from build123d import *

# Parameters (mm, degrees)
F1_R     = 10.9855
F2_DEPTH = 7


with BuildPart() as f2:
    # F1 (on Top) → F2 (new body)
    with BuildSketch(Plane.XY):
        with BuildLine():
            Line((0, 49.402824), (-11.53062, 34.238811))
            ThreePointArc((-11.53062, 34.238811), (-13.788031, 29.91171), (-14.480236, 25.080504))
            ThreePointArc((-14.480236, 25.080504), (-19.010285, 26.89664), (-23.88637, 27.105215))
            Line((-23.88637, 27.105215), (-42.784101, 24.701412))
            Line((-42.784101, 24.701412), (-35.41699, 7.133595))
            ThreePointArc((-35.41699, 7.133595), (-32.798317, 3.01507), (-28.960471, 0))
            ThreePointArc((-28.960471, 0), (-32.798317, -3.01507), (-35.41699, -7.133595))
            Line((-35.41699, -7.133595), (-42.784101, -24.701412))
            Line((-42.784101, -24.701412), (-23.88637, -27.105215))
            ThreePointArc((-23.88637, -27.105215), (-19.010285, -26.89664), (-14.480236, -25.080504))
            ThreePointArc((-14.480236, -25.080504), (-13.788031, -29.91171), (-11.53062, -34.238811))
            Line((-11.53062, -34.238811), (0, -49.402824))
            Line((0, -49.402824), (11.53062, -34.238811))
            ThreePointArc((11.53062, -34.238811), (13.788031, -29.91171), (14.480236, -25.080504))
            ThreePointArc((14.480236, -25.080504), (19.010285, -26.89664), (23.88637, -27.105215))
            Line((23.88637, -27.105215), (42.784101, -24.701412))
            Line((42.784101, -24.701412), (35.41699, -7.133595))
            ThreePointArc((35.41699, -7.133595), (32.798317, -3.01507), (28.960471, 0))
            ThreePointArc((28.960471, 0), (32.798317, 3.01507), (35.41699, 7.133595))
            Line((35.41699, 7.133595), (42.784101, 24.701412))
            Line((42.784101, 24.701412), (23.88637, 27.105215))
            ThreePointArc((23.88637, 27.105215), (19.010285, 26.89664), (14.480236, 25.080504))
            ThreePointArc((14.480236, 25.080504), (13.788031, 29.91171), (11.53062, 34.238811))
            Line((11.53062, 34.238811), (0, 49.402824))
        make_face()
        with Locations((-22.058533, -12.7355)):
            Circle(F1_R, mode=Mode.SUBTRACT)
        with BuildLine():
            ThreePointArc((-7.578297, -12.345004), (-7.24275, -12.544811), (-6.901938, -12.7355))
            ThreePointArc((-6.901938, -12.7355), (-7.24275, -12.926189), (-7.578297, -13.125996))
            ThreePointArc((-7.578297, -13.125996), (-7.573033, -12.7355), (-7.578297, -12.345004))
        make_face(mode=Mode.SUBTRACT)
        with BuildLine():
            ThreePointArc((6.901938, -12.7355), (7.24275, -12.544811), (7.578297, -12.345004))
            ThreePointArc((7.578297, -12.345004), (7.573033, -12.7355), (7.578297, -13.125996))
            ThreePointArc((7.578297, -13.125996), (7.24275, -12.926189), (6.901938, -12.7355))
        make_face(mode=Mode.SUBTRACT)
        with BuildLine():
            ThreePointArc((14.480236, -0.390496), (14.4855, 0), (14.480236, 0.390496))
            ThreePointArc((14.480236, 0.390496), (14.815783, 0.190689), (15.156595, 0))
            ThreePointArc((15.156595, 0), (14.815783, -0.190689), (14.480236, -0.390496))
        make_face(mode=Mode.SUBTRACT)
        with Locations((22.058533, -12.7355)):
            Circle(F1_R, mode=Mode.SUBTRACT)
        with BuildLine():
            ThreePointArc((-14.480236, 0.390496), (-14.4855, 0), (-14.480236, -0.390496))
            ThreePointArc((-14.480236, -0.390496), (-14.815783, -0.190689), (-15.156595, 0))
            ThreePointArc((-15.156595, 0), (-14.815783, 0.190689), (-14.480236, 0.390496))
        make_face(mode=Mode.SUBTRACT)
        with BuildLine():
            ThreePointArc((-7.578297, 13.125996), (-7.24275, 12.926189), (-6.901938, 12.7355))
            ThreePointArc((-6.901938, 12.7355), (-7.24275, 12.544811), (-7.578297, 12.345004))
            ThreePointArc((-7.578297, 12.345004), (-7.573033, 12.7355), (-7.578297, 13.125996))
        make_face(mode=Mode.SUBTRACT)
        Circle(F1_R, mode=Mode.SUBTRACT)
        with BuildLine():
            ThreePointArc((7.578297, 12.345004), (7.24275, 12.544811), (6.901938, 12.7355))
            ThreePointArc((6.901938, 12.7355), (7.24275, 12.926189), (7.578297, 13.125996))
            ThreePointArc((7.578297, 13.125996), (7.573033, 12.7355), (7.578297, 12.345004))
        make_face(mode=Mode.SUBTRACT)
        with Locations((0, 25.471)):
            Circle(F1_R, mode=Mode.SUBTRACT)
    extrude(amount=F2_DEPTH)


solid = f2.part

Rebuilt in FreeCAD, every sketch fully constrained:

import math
import FreeCAD as App
import Part
import Sketcher
from FreeCAD import Vector
Q = App.Units.Quantity

doc = App.newDocument("Part")
body = doc.addObject("PartDesign::Body", "Body")

# Sketch on XY plane
sketch1 = body.newObject("Sketcher::SketchObject", "Sketch")
sketch1.AttachmentSupport = (doc.getObject("XY_Plane"), [""])
sketch1.MapMode = "FlatFace"
sketch1.addGeometry(Part.LineSegment(Vector(0, 49.402824, 0), Vector(-11.53062, 34.238811, 0)), False)
sketch1.addGeometry(Part.ArcOfCircle(Part.Circle(Vector(0.000006, 25.470997, 0), Vector(0, 0, 1), 14.485506), math.radians(142.750875), math.radians(181.544739)), False)
sketch1.addGeometry(Part.ArcOfCircle(Part.Circle(Vector(-22.058533, 12.735499, 0), Vector(0, 0, 1), 14.4855), math.radians(58.455254), math.radians(97.249132)), False)
sketch1.addGeometry(Part.LineSegment(Vector(-23.88637, 27.105215, 0), Vector(-42.784101, 24.701412, 0)), False)
sketch1.addGeometry(Part.LineSegment(Vector(-42.784101, 24.701412, 0), Vector(-35.41699, 7.133595, 0)), False)
sketch1.addGeometry(Part.ArcOfCircle(Part.Circle(Vector(-22.058537, 12.735496, 0), Vector(0, 0, 1), 14.485495), math.radians(-157.249134), math.radians(-118.45524)), False)
sketch1.addGeometry(Part.ArcOfCircle(Part.Circle(Vector(-22.058537, -12.735496, 0), Vector(0, 0, 1), 14.485495), math.radians(118.45524), math.radians(157.249134)), False)
sketch1.addGeometry(Part.LineSegment(Vector(-35.41699, -7.133595, 0), Vector(-42.784101, -24.701412, 0)), False)
sketch1.addGeometry(Part.LineSegment(Vector(-42.784101, -24.701412, 0), Vector(-23.88637, -27.105215, 0)), False)
sketch1.addGeometry(Part.ArcOfCircle(Part.Circle(Vector(-22.058533, -12.735499, 0), Vector(0, 0, 1), 14.4855), math.radians(-97.249132), math.radians(-58.455254)), False)
sketch1.addGeometry(Part.ArcOfCircle(Part.Circle(Vector(0.000006, -25.470997, 0), Vector(0, 0, 1), 14.485506), math.radians(178.455261), math.radians(217.249125)), False)
sketch1.addGeometry(Part.LineSegment(Vector(-11.53062, -34.238811, 0), Vector(0, -49.402824, 0)), False)
sketch1.addGeometry(Part.LineSegment(Vector(0, -49.402824, 0), Vector(11.53062, -34.238811, 0)), False)
sketch1.addGeometry(Part.ArcOfCircle(Part.Circle(Vector(-0.000006, -25.470997, 0), Vector(0, 0, 1), 14.485506), math.radians(-37.249125), math.radians(1.544739)), False)
sketch1.addGeometry(Part.ArcOfCircle(Part.Circle(Vector(22.058533, -12.735499, 0), Vector(0, 0, 1), 14.4855), math.radians(-121.544746), math.radians(-82.750868)), False)
sketch1.addGeometry(Part.LineSegment(Vector(23.88637, -27.105215, 0), Vector(42.784101, -24.701412, 0)), False)
sketch1.addGeometry(Part.LineSegment(Vector(42.784101, -24.701412, 0), Vector(35.41699, -7.133595, 0)), False)
sketch1.addGeometry(Part.ArcOfCircle(Part.Circle(Vector(22.058537, -12.735496, 0), Vector(0, 0, 1), 14.485495), math.radians(22.750866), math.radians(61.54476)), False)
sketch1.addGeometry(Part.ArcOfCircle(Part.Circle(Vector(22.058537, 12.735496, 0), Vector(0, 0, 1), 14.485495), math.radians(-61.54476), math.radians(-22.750866)), False)
sketch1.addGeometry(Part.LineSegment(Vector(35.41699, 7.133595, 0), Vector(42.784101, 24.701412, 0)), False)
sketch1.addGeometry(Part.LineSegment(Vector(42.784101, 24.701412, 0), Vector(23.88637, 27.105215, 0)), False)
sketch1.addGeometry(Part.ArcOfCircle(Part.Circle(Vector(22.058533, 12.735499, 0), Vector(0, 0, 1), 14.4855), math.radians(82.750868), math.radians(121.544746)), False)
sketch1.addGeometry(Part.ArcOfCircle(Part.Circle(Vector(-0.000006, 25.470997, 0), Vector(0, 0, 1), 14.485506), math.radians(-1.544739), math.radians(37.249125)), False)
sketch1.addGeometry(Part.LineSegment(Vector(11.53062, 34.238811, 0), Vector(0, 49.402824, 0)), False)
sketch1.addGeometry(Part.Circle(Vector(-22.058533, -12.7355, 0), Vector(0, 0, 1), 10.9855), False)
sketch1.addGeometry(Part.ArcOfCircle(Part.Circle(Vector(-22.059625, -12.7355, 0), Vector(0, 0, 1), 14.486592), math.radians(-1.544634), math.radians(1.544634)), False)
sketch1.addGeometry(Part.ArcOfCircle(Part.Circle(Vector(-0.000086, -0.000147, 0), Vector(0, 0, 1), 14.48533), math.radians(-121.544766), math.radians(-118.455228)), False)
sketch1.addGeometry(Part.ArcOfCircle(Part.Circle(Vector(-0.000086, -25.470853, 0), Vector(0, 0, 1), 14.48533), math.radians(118.455228), math.radians(121.544766)), False)
sketch1.addGeometry(Part.ArcOfCircle(Part.Circle(Vector(-22.058447, 12.735353, 0), Vector(0, 0, 1), 14.48533), math.radians(-61.544772), math.radians(-58.455234)), False)
sketch1.addGeometry(Part.ArcOfCircle(Part.Circle(Vector(0.001092, 0, 0), Vector(0, 0, 1), 14.486592), math.radians(178.455366), math.radians(181.544634)), False)
sketch1.addGeometry(Part.ArcOfCircle(Part.Circle(Vector(-22.058447, -12.735353, 0), Vector(0, 0, 1), 14.48533), math.radians(58.455234), math.radians(61.544772)), False)
sketch1.addGeometry(Part.ArcOfCircle(Part.Circle(Vector(0.000086, -25.470853, 0), Vector(0, 0, 1), 14.48533), math.radians(58.455234), math.radians(61.544772)), False)
sketch1.addGeometry(Part.ArcOfCircle(Part.Circle(Vector(0.000086, -0.000147, 0), Vector(0, 0, 1), 14.48533), math.radians(-61.544772), math.radians(-58.455234)), False)
sketch1.addGeometry(Part.ArcOfCircle(Part.Circle(Vector(22.059625, -12.7355, 0), Vector(0, 0, 1), 14.486592), math.radians(178.455366), math.radians(181.544634)), False)
sketch1.addGeometry(Part.Circle(Vector(22.058533, -12.7355, 0), Vector(0, 0, 1), 10.9855), False)
sketch1.addGeometry(Part.Circle(Vector(0, 0, 0), Vector(0, 0, 1), 10.9855), False)
sketch1.addGeometry(Part.ArcOfCircle(Part.Circle(Vector(22.058447, -12.735353, 0), Vector(0, 0, 1), 14.48533), math.radians(118.455228), math.radians(121.544766)), False)
sketch1.addGeometry(Part.ArcOfCircle(Part.Circle(Vector(-0.001092, 0, 0), Vector(0, 0, 1), 14.486592), math.radians(-1.544634), math.radians(1.544634)), False)
sketch1.addGeometry(Part.ArcOfCircle(Part.Circle(Vector(22.058447, 12.735353, 0), Vector(0, 0, 1), 14.48533), math.radians(-121.544766), math.radians(-118.455228)), False)
sketch1.addGeometry(Part.ArcOfCircle(Part.Circle(Vector(-22.059625, 12.7355, 0), Vector(0, 0, 1), 14.486592), math.radians(-1.544634), math.radians(1.544634)), False)
sketch1.addGeometry(Part.ArcOfCircle(Part.Circle(Vector(-0.000086, 25.470853, 0), Vector(0, 0, 1), 14.48533), math.radians(-121.544766), math.radians(-118.455228)), False)
sketch1.addGeometry(Part.ArcOfCircle(Part.Circle(Vector(-0.000086, 0.000147, 0), Vector(0, 0, 1), 14.48533), math.radians(118.455228), math.radians(121.544766)), False)
sketch1.addGeometry(Part.ArcOfCircle(Part.Circle(Vector(22.059625, 12.7355, 0), Vector(0, 0, 1), 14.486592), math.radians(178.455366), math.radians(181.544634)), False)
sketch1.addGeometry(Part.ArcOfCircle(Part.Circle(Vector(0.000086, 0.000147, 0), Vector(0, 0, 1), 14.48533), math.radians(58.455234), math.radians(61.544772)), False)
sketch1.addGeometry(Part.ArcOfCircle(Part.Circle(Vector(0.000086, 25.470853, 0), Vector(0, 0, 1), 14.48533), math.radians(-61.544772), math.radians(-58.455234)), False)
sketch1.addGeometry(Part.Circle(Vector(0, 25.471, 0), Vector(0, 0, 1), 10.9855), False)
sketch1.addConstraint(Sketcher.Constraint("Coincident", 0, 2, 1, 1))
sketch1.addConstraint(Sketcher.Constraint("Coincident", 1, 2, 2, 1))
sketch1.addConstraint(Sketcher.Constraint("Coincident", 2, 2, 3, 1))
sketch1.addConstraint(Sketcher.Constraint("Coincident", 3, 2, 4, 1))
sketch1.addConstraint(Sketcher.Constraint("Coincident", 4, 2, 5, 1))
sketch1.addConstraint(Sketcher.Constraint("Coincident", 5, 2, 6, 1))
sketch1.addConstraint(Sketcher.Constraint("Coincident", 6, 2, 7, 1))
sketch1.addConstraint(Sketcher.Constraint("Coincident", 7, 2, 8, 1))
sketch1.addConstraint(Sketcher.Constraint("Coincident", 8, 2, 9, 1))
sketch1.addConstraint(Sketcher.Constraint("Coincident", 9, 2, 10, 1))
sketch1.addConstraint(Sketcher.Constraint("Coincident", 10, 2, 11, 1))
sketch1.addConstraint(Sketcher.Constraint("Coincident", 11, 2, 12, 1))
sketch1.addConstraint(Sketcher.Constraint("Coincident", 12, 2, 13, 1))
sketch1.addConstraint(Sketcher.Constraint("Coincident", 13, 2, 14, 1))
sketch1.addConstraint(Sketcher.Constraint("Coincident", 14, 2, 15, 1))
sketch1.addConstraint(Sketcher.Constraint("Coincident", 15, 2, 16, 1))
sketch1.addConstraint(Sketcher.Constraint("Coincident", 16, 2, 17, 1))
sketch1.addConstraint(Sketcher.Constraint("Coincident", 17, 2, 18, 1))
sketch1.addConstraint(Sketcher.Constraint("Coincident", 18, 2, 19, 1))
sketch1.addConstraint(Sketcher.Constraint("Coincident", 19, 2, 20, 1))
sketch1.addConstraint(Sketcher.Constraint("Coincident", 20, 2, 21, 1))
sketch1.addConstraint(Sketcher.Constraint("Coincident", 21, 2, 22, 1))
sketch1.addConstraint(Sketcher.Constraint("Coincident", 22, 2, 23, 1))
sketch1.addConstraint(Sketcher.Constraint("Coincident", 23, 2, 0, 1))
sketch1.addConstraint(Sketcher.Constraint("Coincident", 25, 2, 26, 1))
sketch1.addConstraint(Sketcher.Constraint("Coincident", 26, 2, 27, 1))
sketch1.addConstraint(Sketcher.Constraint("Coincident", 27, 2, 25, 1))
sketch1.addConstraint(Sketcher.Constraint("Coincident", 28, 2, 29, 1))
sketch1.addConstraint(Sketcher.Constraint("Coincident", 29, 2, 30, 1))
sketch1.addConstraint(Sketcher.Constraint("Coincident", 30, 2, 28, 1))
sketch1.addConstraint(Sketcher.Constraint("Coincident", 31, 2, 32, 1))
sketch1.addConstraint(Sketcher.Constraint("Coincident", 32, 2, 33, 1))
sketch1.addConstraint(Sketcher.Constraint("Coincident", 33, 2, 31, 1))
sketch1.addConstraint(Sketcher.Constraint("Coincident", 36, 2, 37, 1))
sketch1.addConstraint(Sketcher.Constraint("Coincident", 37, 2, 38, 1))
sketch1.addConstraint(Sketcher.Constraint("Coincident", 38, 2, 36, 1))
sketch1.addConstraint(Sketcher.Constraint("Coincident", 39, 2, 40, 1))
sketch1.addConstraint(Sketcher.Constraint("Coincident", 40, 2, 41, 1))
sketch1.addConstraint(Sketcher.Constraint("Coincident", 41, 2, 39, 1))
sketch1.addConstraint(Sketcher.Constraint("Coincident", 42, 2, 43, 1))
sketch1.addConstraint(Sketcher.Constraint("Coincident", 43, 2, 44, 1))
sketch1.addConstraint(Sketcher.Constraint("Coincident", 44, 2, 42, 1))
sketch1.addConstraint(Sketcher.Constraint("Coincident", 35, 3, -1, 1))
sketch1.addConstraint(Sketcher.Constraint("Coincident", 5, 3, 2, 3))
sketch1.addConstraint(Sketcher.Constraint("Coincident", 9, 3, 6, 3))
sketch1.addConstraint(Sketcher.Constraint("Coincident", 17, 3, 14, 3))
sketch1.addConstraint(Sketcher.Constraint("Coincident", 21, 3, 18, 3))
sketch1.addConstraint(Sketcher.Constraint("Coincident", 24, 3, 6, 3))
sketch1.addConstraint(Sketcher.Constraint("Coincident", 34, 3, 14, 3))
sketch1.addConstraint(Sketcher.Constraint("Coincident", 45, 3, 1, 3))
sketch1.addConstraint(Sketcher.Constraint("PointOnObject", 29, 3, -1))
sketch1.addConstraint(Sketcher.Constraint("PointOnObject", 37, 3, -1))
sketch1.addConstraint(Sketcher.Constraint("PointOnObject", 45, 3, -2))
sketch1.addConstraint(Sketcher.Constraint("PointOnObject", 5, 2, -1))
sketch1.addConstraint(Sketcher.Constraint("PointOnObject", 11, 2, -2))
sketch1.addConstraint(Sketcher.Constraint("PointOnObject", 17, 2, -1))
sketch1.addConstraint(Sketcher.Constraint("PointOnObject", 23, 2, -2))
sketch1.addConstraint(Sketcher.Constraint("PointOnObject", 30, 2, -1))
sketch1.addConstraint(Sketcher.Constraint("PointOnObject", 38, 2, -1))
sketch1.addConstraint(Sketcher.Constraint("Diameter", 24, Q("0.865 in")))
sketch1.addConstraint(Sketcher.Constraint("Diameter", 34, Q("0.865 in")))
sketch1.addConstraint(Sketcher.Constraint("Diameter", 35, Q("0.865 in")))
sketch1.addConstraint(Sketcher.Constraint("Diameter", 45, Q("0.865 in")))
sketch1.addConstraint(Sketcher.Constraint("Distance", 0, Q("0.75 in")))
sketch1.addConstraint(Sketcher.Constraint("Distance", 3, Q("0.75 in")))
sketch1.addConstraint(Sketcher.Constraint("Distance", 4, Q("0.75 in")))
sketch1.addConstraint(Sketcher.Constraint("Distance", 7, Q("0.75 in")))
sketch1.addConstraint(Sketcher.Constraint("Distance", 8, Q("0.75 in")))
sketch1.addConstraint(Sketcher.Constraint("Distance", 11, Q("0.75 in")))
sketch1.addConstraint(Sketcher.Constraint("Distance", 12, Q("0.75 in")))
sketch1.addConstraint(Sketcher.Constraint("Distance", 15, Q("0.75 in")))
sketch1.addConstraint(Sketcher.Constraint("Distance", 16, Q("0.75 in")))
sketch1.addConstraint(Sketcher.Constraint("Distance", 19, Q("0.75 in")))
sketch1.addConstraint(Sketcher.Constraint("Distance", 20, Q("0.75 in")))
sketch1.addConstraint(Sketcher.Constraint("Distance", 23, Q("0.75 in")))
sketch1.addConstraint(Sketcher.Constraint("Radius", 2, Q("14.4855 mm")))
sketch1.addConstraint(Sketcher.Constraint("Radius", 9, Q("14.4855 mm")))
sketch1.addConstraint(Sketcher.Constraint("Radius", 14, Q("14.4855 mm")))
sketch1.addConstraint(Sketcher.Constraint("Radius", 21, Q("14.4855 mm")))
sketch1.addConstraint(Sketcher.Constraint("Radius", 25, Q("14.486592 mm")))
sketch1.addConstraint(Sketcher.Constraint("Radius", 26, Q("14.48533 mm")))
sketch1.addConstraint(Sketcher.Constraint("Radius", 27, Q("14.48533 mm")))
sketch1.addConstraint(Sketcher.Constraint("Radius", 28, Q("14.48533 mm")))
sketch1.addConstraint(Sketcher.Constraint("Radius", 29, Q("14.486592 mm")))
sketch1.addConstraint(Sketcher.Constraint("Radius", 30, Q("14.48533 mm")))
sketch1.addConstraint(Sketcher.Constraint("Radius", 31, Q("14.48533 mm")))
sketch1.addConstraint(Sketcher.Constraint("Radius", 32, Q("14.48533 mm")))
sketch1.addConstraint(Sketcher.Constraint("Radius", 33, Q("14.486592 mm")))
sketch1.addConstraint(Sketcher.Constraint("Radius", 36, Q("14.48533 mm")))
sketch1.addConstraint(Sketcher.Constraint("Radius", 37, Q("14.486592 mm")))
sketch1.addConstraint(Sketcher.Constraint("Radius", 38, Q("14.48533 mm")))
sketch1.addConstraint(Sketcher.Constraint("Radius", 39, Q("14.486592 mm")))
sketch1.addConstraint(Sketcher.Constraint("Radius", 40, Q("14.48533 mm")))
sketch1.addConstraint(Sketcher.Constraint("Radius", 41, Q("14.48533 mm")))
sketch1.addConstraint(Sketcher.Constraint("Radius", 42, Q("14.486592 mm")))
sketch1.addConstraint(Sketcher.Constraint("Radius", 43, Q("14.48533 mm")))
sketch1.addConstraint(Sketcher.Constraint("Radius", 44, Q("14.48533 mm")))
sketch1.addConstraint(Sketcher.Constraint("Radius", 1, Q("14.485506 mm")))
sketch1.addConstraint(Sketcher.Constraint("Radius", 5, Q("14.485495 mm")))
sketch1.addConstraint(Sketcher.Constraint("Radius", 6, Q("14.485495 mm")))
sketch1.addConstraint(Sketcher.Constraint("Radius", 10, Q("14.485506 mm")))
sketch1.addConstraint(Sketcher.Constraint("Radius", 13, Q("14.485506 mm")))
sketch1.addConstraint(Sketcher.Constraint("Radius", 17, Q("14.485495 mm")))
sketch1.addConstraint(Sketcher.Constraint("Radius", 18, Q("14.485495 mm")))
sketch1.addConstraint(Sketcher.Constraint("Radius", 22, Q("14.485506 mm")))
sketch1.addConstraint(Sketcher.Constraint("DistanceY", -1, 1, 2, 3, Q("12.735499 mm")))
sketch1.addConstraint(Sketcher.Constraint("DistanceY", 9, 3, -1, 1, Q("12.735499 mm")))
sketch1.addConstraint(Sketcher.Constraint("DistanceY", 14, 3, -1, 1, Q("12.735499 mm")))
sketch1.addConstraint(Sketcher.Constraint("DistanceY", -1, 1, 21, 3, Q("12.735499 mm")))
sketch1.addConstraint(Sketcher.Constraint("DistanceY", 25, 3, -1, 1, Q("12.7355 mm")))
sketch1.addConstraint(Sketcher.Constraint("DistanceY", 33, 3, -1, 1, Q("12.7355 mm")))
sketch1.addConstraint(Sketcher.Constraint("DistanceY", -1, 1, 39, 3, Q("12.7355 mm")))
sketch1.addConstraint(Sketcher.Constraint("DistanceY", -1, 1, 42, 3, Q("12.7355 mm")))
sketch1.addConstraint(Sketcher.Constraint("DistanceY", -1, 1, 45, 3, Q("25.471 mm")))
sketch1.addConstraint(Sketcher.Constraint("DistanceX", 3, 2, -1, 1, Q("42.784101 mm")))
sketch1.addConstraint(Sketcher.Constraint("DistanceX", 7, 2, -1, 1, Q("42.784101 mm")))
sketch1.addConstraint(Sketcher.Constraint("DistanceX", -1, 1, 15, 2, Q("42.784101 mm")))
sketch1.addConstraint(Sketcher.Constraint("DistanceX", -1, 1, 19, 2, Q("42.784101 mm")))
sketch1.addConstraint(Sketcher.Constraint("DistanceY", 26, 2, -1, 1, Q("12.7355 mm")))
sketch1.addConstraint(Sketcher.Constraint("DistanceY", 31, 2, -1, 1, Q("12.7355 mm")))
sketch1.addConstraint(Sketcher.Constraint("DistanceY", -1, 1, 40, 2, Q("12.7355 mm")))
sketch1.addConstraint(Sketcher.Constraint("DistanceY", -1, 1, 43, 2, Q("12.7355 mm")))
sketch1.addConstraint(Sketcher.Constraint("DistanceX", -1, 1, 29, 3, Q("0.001092 mm")))
sketch1.addConstraint(Sketcher.Constraint("DistanceX", 37, 3, -1, 1, Q("0.001092 mm")))
sketch1.addConstraint(Sketcher.Constraint("DistanceX", 0, 2, -1, 1, Q("11.53062 mm")))
sketch1.addConstraint(Sketcher.Constraint("DistanceX", 2, 2, -1, 1, Q("23.88637 mm")))
sketch1.addConstraint(Sketcher.Constraint("DistanceX", 4, 2, -1, 1, Q("35.41699 mm")))
sketch1.addConstraint(Sketcher.Constraint("DistanceX", 6, 2, -1, 1, Q("35.41699 mm")))
sketch1.addConstraint(Sketcher.Constraint("DistanceX", 10, 2, -1, 1, Q("11.53062 mm")))
sketch1.addConstraint(Sketcher.Constraint("DistanceY", 10, 2, -1, 1, Q("34.238811 mm")))
sketch1.addConstraint(Sketcher.Constraint("DistanceX", -1, 1, 12, 2, Q("11.53062 mm")))
sketch1.addConstraint(Sketcher.Constraint("DistanceX", -1, 1, 14, 2, Q("23.88637 mm")))
sketch1.addConstraint(Sketcher.Constraint("DistanceX", -1, 1, 16, 2, Q("35.41699 mm")))
sketch1.addConstraint(Sketcher.Constraint("DistanceX", -1, 1, 18, 2, Q("35.41699 mm")))
sketch1.addConstraint(Sketcher.Constraint("DistanceX", -1, 1, 22, 2, Q("11.53062 mm")))
sketch1.addConstraint(Sketcher.Constraint("DistanceX", 26, 2, -1, 1, Q("6.901938 mm")))
sketch1.addConstraint(Sketcher.Constraint("DistanceX", -1, 1, 31, 2, Q("6.901938 mm")))
sketch1.addConstraint(Sketcher.Constraint("DistanceX", 40, 2, -1, 1, Q("6.901938 mm")))
sketch1.addConstraint(Sketcher.Constraint("DistanceX", -1, 1, 43, 2, Q("6.901938 mm")))
sketch1.addConstraint(Sketcher.Constraint("DistanceY", 10, 3, -1, 1, Q("25.470997 mm")))
sketch1.addConstraint(Sketcher.Constraint("DistanceY", 13, 3, -1, 1, Q("25.470997 mm")))
sketch1.addConstraint(Sketcher.Constraint("DistanceY", -1, 1, 22, 3, Q("25.470997 mm")))
sketch1.addConstraint(Sketcher.Constraint("DistanceX", 25, 3, -1, 1, Q("22.059625 mm")))
sketch1.addConstraint(Sketcher.Constraint("DistanceY", 26, 3, -1, 1, Q("0.000147 mm")))
sketch1.addConstraint(Sketcher.Constraint("DistanceY", 27, 3, -1, 1, Q("25.470853 mm")))
sketch1.addConstraint(Sketcher.Constraint("DistanceX", 28, 3, -1, 1, Q("22.058447 mm")))
sketch1.addConstraint(Sketcher.Constraint("DistanceY", -1, 1, 28, 3, Q("12.735353 mm")))
sketch1.addConstraint(Sketcher.Constraint("DistanceX", 30, 3, -1, 1, Q("22.058447 mm")))
sketch1.addConstraint(Sketcher.Constraint("DistanceY", 31, 3, -1, 1, Q("25.470853 mm")))
sketch1.addConstraint(Sketcher.Constraint("DistanceY", 32, 3, -1, 1, Q("0.000147 mm")))
sketch1.addConstraint(Sketcher.Constraint("DistanceX", -1, 1, 33, 3, Q("22.059625 mm")))
sketch1.addConstraint(Sketcher.Constraint("DistanceX", -1, 1, 36, 3, Q("22.058447 mm")))
sketch1.addConstraint(Sketcher.Constraint("DistanceY", 36, 3, -1, 1, Q("12.735353 mm")))
sketch1.addConstraint(Sketcher.Constraint("DistanceX", -1, 1, 38, 3, Q("22.058447 mm")))
sketch1.addConstraint(Sketcher.Constraint("DistanceX", 39, 3, -1, 1, Q("22.059625 mm")))
sketch1.addConstraint(Sketcher.Constraint("DistanceY", -1, 1, 40, 3, Q("25.470853 mm")))
sketch1.addConstraint(Sketcher.Constraint("DistanceY", -1, 1, 41, 3, Q("0.000147 mm")))
sketch1.addConstraint(Sketcher.Constraint("DistanceX", -1, 1, 42, 3, Q("22.059625 mm")))
sketch1.addConstraint(Sketcher.Constraint("DistanceY", -1, 1, 43, 3, Q("0.000147 mm")))
sketch1.addConstraint(Sketcher.Constraint("DistanceY", -1, 1, 44, 3, Q("25.470853 mm")))
pad1 = body.newObject("PartDesign::Pad", "Pad")
pad1.Profile = sketch1
pad1.Length = 7

doc.recompute()
